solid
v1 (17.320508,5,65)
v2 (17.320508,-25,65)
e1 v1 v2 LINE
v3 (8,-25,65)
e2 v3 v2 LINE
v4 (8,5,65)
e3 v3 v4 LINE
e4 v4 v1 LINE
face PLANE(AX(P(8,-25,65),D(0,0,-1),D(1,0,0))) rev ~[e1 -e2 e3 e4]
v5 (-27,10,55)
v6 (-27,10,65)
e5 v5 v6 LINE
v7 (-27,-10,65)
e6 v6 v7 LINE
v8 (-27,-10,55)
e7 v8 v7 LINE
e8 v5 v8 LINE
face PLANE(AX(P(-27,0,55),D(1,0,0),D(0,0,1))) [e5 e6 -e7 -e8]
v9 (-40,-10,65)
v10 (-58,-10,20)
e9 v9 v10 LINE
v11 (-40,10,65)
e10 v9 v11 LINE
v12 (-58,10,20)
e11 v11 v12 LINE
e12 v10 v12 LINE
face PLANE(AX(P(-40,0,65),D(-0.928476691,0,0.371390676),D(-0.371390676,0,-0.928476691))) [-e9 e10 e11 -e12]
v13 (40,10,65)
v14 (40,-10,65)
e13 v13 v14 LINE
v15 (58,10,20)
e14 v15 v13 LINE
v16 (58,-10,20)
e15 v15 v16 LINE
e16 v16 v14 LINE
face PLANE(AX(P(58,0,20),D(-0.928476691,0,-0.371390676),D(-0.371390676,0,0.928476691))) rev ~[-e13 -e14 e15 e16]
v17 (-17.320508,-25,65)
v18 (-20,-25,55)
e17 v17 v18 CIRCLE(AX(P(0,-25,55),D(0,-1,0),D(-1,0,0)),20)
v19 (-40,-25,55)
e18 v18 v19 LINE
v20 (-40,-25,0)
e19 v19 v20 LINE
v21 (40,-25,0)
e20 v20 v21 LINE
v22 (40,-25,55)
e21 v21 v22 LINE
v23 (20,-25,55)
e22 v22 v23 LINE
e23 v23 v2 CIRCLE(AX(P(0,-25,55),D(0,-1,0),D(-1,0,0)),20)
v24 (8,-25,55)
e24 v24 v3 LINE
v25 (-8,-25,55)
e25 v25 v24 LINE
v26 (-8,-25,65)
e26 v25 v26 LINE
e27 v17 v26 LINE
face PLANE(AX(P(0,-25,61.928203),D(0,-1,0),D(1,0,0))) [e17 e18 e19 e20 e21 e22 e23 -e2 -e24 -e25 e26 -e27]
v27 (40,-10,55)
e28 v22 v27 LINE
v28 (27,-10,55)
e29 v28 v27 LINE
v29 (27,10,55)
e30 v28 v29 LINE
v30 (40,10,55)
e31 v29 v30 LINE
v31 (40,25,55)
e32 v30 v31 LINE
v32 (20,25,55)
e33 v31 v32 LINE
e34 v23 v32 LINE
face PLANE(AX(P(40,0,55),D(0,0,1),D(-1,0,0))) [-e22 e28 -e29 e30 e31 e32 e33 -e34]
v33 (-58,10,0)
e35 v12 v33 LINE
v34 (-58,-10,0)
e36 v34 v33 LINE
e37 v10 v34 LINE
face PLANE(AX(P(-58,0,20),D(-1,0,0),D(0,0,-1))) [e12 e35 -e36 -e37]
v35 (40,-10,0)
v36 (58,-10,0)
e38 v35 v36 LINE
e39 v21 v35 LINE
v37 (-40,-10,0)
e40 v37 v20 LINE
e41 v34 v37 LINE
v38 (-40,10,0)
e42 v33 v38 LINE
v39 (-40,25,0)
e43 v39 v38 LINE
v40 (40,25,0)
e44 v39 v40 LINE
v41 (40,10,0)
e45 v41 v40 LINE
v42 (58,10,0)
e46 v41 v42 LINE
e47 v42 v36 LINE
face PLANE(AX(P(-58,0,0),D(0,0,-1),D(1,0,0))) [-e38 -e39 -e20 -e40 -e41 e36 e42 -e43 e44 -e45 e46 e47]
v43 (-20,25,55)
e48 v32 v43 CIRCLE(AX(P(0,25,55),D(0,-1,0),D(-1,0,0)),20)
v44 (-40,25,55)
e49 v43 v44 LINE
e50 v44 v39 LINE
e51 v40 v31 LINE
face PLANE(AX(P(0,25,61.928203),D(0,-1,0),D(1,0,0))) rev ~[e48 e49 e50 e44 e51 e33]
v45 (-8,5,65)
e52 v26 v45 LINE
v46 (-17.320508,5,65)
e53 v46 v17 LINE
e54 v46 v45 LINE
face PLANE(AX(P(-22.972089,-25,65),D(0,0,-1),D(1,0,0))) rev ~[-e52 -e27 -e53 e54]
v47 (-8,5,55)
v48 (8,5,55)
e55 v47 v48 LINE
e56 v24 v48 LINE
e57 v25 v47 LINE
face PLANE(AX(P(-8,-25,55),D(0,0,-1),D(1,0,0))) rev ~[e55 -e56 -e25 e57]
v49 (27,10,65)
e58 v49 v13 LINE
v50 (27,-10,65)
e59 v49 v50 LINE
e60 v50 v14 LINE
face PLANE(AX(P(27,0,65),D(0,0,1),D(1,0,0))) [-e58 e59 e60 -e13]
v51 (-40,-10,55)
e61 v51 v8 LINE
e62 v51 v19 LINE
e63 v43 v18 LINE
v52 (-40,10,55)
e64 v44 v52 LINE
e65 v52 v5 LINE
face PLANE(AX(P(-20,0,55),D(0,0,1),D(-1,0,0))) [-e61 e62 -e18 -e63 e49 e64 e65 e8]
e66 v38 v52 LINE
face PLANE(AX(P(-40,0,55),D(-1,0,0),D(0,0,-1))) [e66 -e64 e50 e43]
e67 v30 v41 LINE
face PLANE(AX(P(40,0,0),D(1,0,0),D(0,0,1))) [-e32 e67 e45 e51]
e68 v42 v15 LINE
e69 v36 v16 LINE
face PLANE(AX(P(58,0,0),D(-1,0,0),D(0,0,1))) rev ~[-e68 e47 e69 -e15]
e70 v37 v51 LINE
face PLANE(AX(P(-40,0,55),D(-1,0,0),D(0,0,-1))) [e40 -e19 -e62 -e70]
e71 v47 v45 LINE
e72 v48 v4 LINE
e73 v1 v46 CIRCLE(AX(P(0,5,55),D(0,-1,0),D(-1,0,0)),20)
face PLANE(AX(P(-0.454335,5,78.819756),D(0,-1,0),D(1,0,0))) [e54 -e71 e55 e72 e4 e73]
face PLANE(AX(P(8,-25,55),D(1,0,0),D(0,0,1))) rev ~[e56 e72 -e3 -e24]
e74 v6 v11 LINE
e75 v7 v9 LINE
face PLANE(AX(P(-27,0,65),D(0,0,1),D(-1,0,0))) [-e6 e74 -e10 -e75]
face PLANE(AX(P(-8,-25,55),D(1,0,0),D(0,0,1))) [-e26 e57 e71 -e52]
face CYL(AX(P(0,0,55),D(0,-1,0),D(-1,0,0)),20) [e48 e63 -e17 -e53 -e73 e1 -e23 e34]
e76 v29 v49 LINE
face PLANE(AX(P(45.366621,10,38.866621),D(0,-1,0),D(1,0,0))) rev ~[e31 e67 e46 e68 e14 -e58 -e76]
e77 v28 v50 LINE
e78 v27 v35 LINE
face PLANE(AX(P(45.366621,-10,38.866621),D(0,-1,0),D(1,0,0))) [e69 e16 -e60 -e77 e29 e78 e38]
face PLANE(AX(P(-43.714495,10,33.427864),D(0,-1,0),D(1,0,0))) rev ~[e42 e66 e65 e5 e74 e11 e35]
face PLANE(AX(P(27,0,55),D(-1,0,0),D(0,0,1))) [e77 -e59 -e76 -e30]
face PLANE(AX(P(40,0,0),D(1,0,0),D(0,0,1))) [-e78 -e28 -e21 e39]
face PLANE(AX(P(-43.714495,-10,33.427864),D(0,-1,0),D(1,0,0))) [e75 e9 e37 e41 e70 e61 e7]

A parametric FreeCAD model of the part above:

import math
import FreeCAD as App
import Part
import Sketcher
from FreeCAD import Vector


def add_polygon(sketch, points):
    """Adds a closed chain of lines whose ends are joined by coincident constraints."""
    first, n = sketch.GeometryCount, len(points)
    for a, b in zip(points, points[1:] + points[:1]):
        sketch.addGeometry(Part.LineSegment(App.Vector(*a, 0), App.Vector(*b, 0)), False)
    for i in range(n):
        sketch.addConstraint(Sketcher.Constraint("Coincident", first + i, 2, first + (i + 1) % n, 1))

doc = App.newDocument("Part")
body = doc.addObject("PartDesign::Body", "Body")

sketch1 = doc.addObject("Sketcher::SketchObject", "Sketch")
body.addObject(sketch1)
sketch1.AttachmentSupport = (doc.XZ_Plane, [""])
sketch1.MapMode = "FlatFace"
sketch1.addGeometry([
    Part.ArcOfCircle(Part.Circle(Vector(0, 55, 0), Vector(0, 0, 1), 20), math.radians(0), math.radians(180)),
    Part.LineSegment(Vector(-20, 55, 0), Vector(-40, 55, 0)),
    Part.LineSegment(Vector(-40, 55, 0), Vector(-40, 0, 0)),
    Part.LineSegment(Vector(-40, 0, 0), Vector(40, 0, 0)),
    Part.LineSegment(Vector(40, 0, 0), Vector(40, 55, 0)),
    Part.LineSegment(Vector(40, 55, 0), Vector(20, 55, 0)),
], False)
sketch1.addConstraint([
    Sketcher.Constraint("Coincident", 0, 2, 1, 1),
    Sketcher.Constraint("Coincident", 1, 2, 2, 1),
    Sketcher.Constraint("Coincident", 2, 2, 3, 1),
    Sketcher.Constraint("Coincident", 3, 2, 4, 1),
    Sketcher.Constraint("Coincident", 4, 2, 5, 1),
    Sketcher.Constraint("Coincident", 5, 2, 0, 1),
    Sketcher.Constraint("Horizontal", 1),
    Sketcher.Constraint("Vertical", 2),
    Sketcher.Constraint("Horizontal", 3),
    Sketcher.Constraint("Vertical", 4),
    Sketcher.Constraint("Horizontal", 5),
    Sketcher.Constraint("Symmetric", 2, 2, 3, 2, -1, 1),
    Sketcher.Constraint("Symmetric", 0, 2, 5, 2, -2),
    Sketcher.Constraint("Radius", 0, 20.0),
    Sketcher.Constraint("DistanceX", 1, 2, 1, 1, 20.0),
    Sketcher.Constraint("DistanceY", 2, 2, 2, 1, 55.0),
    Sketcher.Constraint("DistanceY", -1, 1, 0, 3, 55.0),
])
pad1 = doc.addObject("PartDesign::Pad", "Pad")
body.addObject(pad1)
pad1.Profile = sketch1
pad1.Type = "TwoLengths"
pad1.Length = 25
pad1.Length2 = 25

sketch2 = doc.addObject("Sketcher::SketchObject", "Sketch001")
body.addObject(sketch2)
sketch2.AttachmentSupport = (doc.XZ_Plane, [""])
sketch2.MapMode = "FlatFace"
sketch2.AttachmentOffset = App.Placement(Vector(0, 0, 25), App.Rotation())
add_polygon(sketch2, [(22, 90), (-23, 90), (-23, 65), (-8, 65), (-8, 55), (8, 55), (8, 65), (22, 65)])
sketch2.addConstraint([
    Sketcher.Constraint("Horizontal", 0),
    Sketcher.Constraint("Vertical", 1),
    Sketcher.Constraint("Horizontal", 2),
    Sketcher.Constraint("Vertical", 3),
    Sketcher.Constraint("Horizontal", 4),
    Sketcher.Constraint("Vertical", 5),
    Sketcher.Constraint("Horizontal", 6),
    Sketcher.Constraint("Vertical", 7),
    Sketcher.Constraint("Symmetric", 2, 2, 5, 2, -2),
    Sketcher.Constraint("DistanceX", 4, 1, 4, 2, 16.0),
    Sketcher.Constraint("DistanceY", 3, 2, 3, 1, 10.0),
    Sketcher.Constraint("DistanceY", -1, 1, 1, 2, 65.0),
    Sketcher.Constraint("DistanceX", 0, 2, 0, 1, 44.99424),
    Sketcher.Constraint("DistanceX", 2, 1, 2, 2, 14.972089),
    Sketcher.Constraint("DistanceY", 1, 2, 1, 1, 25.480611),
])
pocket1 = doc.addObject("PartDesign::Pocket", "Pocket")
body.addObject(pocket1)
pocket1.Profile = sketch2
pocket1.Length = 30

sketch3 = doc.addObject("Sketcher::SketchObject", "Sketch002")
body.addObject(sketch3)
sketch3.AttachmentSupport = (doc.XZ_Plane, [""])
sketch3.MapMode = "FlatFace"
add_polygon(sketch3, [(-58, 0), (-40, 0), (-40, 55), (-27, 55), (-27, 65), (-40, 65), (-58, 20)])
add_polygon(sketch3, [(58, 20), (40, 65), (27, 65), (27, 55), (40, 55), (40, 0), (58, 0)])
sketch3.addConstraint([
    Sketcher.Constraint("Horizontal", 0),
    Sketcher.Constraint("Vertical", 1),
    Sketcher.Constraint("Horizontal", 2),
    Sketcher.Constraint("Vertical", 3),
    Sketcher.Constraint("Horizontal", 4),
    Sketcher.Constraint("Vertical", 6),
    Sketcher.Constraint("Horizontal", 8),
    Sketcher.Constraint("Vertical", 9),
    Sketcher.Constraint("Horizontal", 10),
    Sketcher.Constraint("Vertical", 11),
    Sketcher.Constraint("Horizontal", 12),
    Sketcher.Constraint("Vertical", 13),
    Sketcher.Constraint("Symmetric", 0, 2, 11, 2, -1, 1),
    Sketcher.Constraint("Symmetric", 4, 2, 7, 2, -2),
    Sketcher.Constraint("Symmetric", 2, 2, 9, 2, -2),
    Sketcher.Constraint("Symmetric", 6, 2, 12, 2, -2),
    Sketcher.Constraint("Horizontal", 5, 2, 13, 2),
    Sketcher.Constraint("Vertical", 1, 2, 4, 2),
    Sketcher.Constraint("DistanceX", 0, 1, 0, 2, 18.0),
    Sketcher.Constraint("DistanceX", 2, 1, 2, 2, 13.0),
    Sketcher.Constraint("DistanceY", 1, 1, 1, 2, 55.0),
    Sketcher.Constraint("DistanceY", 3, 1, 3, 2, 10.0),
    Sketcher.Constraint("DistanceY", 6, 2, 6, 1, 20.0),
    Sketcher.Constraint("DistanceX", 0, 2, -1, 1, 40.0),
])
pad2 = doc.addObject("PartDesign::Pad", "Pad001")
body.addObject(pad2)
pad2.Profile = sketch3
pad2.Type = "TwoLengths"
pad2.Length = 10
pad2.Length2 = 10

doc.recompute()
